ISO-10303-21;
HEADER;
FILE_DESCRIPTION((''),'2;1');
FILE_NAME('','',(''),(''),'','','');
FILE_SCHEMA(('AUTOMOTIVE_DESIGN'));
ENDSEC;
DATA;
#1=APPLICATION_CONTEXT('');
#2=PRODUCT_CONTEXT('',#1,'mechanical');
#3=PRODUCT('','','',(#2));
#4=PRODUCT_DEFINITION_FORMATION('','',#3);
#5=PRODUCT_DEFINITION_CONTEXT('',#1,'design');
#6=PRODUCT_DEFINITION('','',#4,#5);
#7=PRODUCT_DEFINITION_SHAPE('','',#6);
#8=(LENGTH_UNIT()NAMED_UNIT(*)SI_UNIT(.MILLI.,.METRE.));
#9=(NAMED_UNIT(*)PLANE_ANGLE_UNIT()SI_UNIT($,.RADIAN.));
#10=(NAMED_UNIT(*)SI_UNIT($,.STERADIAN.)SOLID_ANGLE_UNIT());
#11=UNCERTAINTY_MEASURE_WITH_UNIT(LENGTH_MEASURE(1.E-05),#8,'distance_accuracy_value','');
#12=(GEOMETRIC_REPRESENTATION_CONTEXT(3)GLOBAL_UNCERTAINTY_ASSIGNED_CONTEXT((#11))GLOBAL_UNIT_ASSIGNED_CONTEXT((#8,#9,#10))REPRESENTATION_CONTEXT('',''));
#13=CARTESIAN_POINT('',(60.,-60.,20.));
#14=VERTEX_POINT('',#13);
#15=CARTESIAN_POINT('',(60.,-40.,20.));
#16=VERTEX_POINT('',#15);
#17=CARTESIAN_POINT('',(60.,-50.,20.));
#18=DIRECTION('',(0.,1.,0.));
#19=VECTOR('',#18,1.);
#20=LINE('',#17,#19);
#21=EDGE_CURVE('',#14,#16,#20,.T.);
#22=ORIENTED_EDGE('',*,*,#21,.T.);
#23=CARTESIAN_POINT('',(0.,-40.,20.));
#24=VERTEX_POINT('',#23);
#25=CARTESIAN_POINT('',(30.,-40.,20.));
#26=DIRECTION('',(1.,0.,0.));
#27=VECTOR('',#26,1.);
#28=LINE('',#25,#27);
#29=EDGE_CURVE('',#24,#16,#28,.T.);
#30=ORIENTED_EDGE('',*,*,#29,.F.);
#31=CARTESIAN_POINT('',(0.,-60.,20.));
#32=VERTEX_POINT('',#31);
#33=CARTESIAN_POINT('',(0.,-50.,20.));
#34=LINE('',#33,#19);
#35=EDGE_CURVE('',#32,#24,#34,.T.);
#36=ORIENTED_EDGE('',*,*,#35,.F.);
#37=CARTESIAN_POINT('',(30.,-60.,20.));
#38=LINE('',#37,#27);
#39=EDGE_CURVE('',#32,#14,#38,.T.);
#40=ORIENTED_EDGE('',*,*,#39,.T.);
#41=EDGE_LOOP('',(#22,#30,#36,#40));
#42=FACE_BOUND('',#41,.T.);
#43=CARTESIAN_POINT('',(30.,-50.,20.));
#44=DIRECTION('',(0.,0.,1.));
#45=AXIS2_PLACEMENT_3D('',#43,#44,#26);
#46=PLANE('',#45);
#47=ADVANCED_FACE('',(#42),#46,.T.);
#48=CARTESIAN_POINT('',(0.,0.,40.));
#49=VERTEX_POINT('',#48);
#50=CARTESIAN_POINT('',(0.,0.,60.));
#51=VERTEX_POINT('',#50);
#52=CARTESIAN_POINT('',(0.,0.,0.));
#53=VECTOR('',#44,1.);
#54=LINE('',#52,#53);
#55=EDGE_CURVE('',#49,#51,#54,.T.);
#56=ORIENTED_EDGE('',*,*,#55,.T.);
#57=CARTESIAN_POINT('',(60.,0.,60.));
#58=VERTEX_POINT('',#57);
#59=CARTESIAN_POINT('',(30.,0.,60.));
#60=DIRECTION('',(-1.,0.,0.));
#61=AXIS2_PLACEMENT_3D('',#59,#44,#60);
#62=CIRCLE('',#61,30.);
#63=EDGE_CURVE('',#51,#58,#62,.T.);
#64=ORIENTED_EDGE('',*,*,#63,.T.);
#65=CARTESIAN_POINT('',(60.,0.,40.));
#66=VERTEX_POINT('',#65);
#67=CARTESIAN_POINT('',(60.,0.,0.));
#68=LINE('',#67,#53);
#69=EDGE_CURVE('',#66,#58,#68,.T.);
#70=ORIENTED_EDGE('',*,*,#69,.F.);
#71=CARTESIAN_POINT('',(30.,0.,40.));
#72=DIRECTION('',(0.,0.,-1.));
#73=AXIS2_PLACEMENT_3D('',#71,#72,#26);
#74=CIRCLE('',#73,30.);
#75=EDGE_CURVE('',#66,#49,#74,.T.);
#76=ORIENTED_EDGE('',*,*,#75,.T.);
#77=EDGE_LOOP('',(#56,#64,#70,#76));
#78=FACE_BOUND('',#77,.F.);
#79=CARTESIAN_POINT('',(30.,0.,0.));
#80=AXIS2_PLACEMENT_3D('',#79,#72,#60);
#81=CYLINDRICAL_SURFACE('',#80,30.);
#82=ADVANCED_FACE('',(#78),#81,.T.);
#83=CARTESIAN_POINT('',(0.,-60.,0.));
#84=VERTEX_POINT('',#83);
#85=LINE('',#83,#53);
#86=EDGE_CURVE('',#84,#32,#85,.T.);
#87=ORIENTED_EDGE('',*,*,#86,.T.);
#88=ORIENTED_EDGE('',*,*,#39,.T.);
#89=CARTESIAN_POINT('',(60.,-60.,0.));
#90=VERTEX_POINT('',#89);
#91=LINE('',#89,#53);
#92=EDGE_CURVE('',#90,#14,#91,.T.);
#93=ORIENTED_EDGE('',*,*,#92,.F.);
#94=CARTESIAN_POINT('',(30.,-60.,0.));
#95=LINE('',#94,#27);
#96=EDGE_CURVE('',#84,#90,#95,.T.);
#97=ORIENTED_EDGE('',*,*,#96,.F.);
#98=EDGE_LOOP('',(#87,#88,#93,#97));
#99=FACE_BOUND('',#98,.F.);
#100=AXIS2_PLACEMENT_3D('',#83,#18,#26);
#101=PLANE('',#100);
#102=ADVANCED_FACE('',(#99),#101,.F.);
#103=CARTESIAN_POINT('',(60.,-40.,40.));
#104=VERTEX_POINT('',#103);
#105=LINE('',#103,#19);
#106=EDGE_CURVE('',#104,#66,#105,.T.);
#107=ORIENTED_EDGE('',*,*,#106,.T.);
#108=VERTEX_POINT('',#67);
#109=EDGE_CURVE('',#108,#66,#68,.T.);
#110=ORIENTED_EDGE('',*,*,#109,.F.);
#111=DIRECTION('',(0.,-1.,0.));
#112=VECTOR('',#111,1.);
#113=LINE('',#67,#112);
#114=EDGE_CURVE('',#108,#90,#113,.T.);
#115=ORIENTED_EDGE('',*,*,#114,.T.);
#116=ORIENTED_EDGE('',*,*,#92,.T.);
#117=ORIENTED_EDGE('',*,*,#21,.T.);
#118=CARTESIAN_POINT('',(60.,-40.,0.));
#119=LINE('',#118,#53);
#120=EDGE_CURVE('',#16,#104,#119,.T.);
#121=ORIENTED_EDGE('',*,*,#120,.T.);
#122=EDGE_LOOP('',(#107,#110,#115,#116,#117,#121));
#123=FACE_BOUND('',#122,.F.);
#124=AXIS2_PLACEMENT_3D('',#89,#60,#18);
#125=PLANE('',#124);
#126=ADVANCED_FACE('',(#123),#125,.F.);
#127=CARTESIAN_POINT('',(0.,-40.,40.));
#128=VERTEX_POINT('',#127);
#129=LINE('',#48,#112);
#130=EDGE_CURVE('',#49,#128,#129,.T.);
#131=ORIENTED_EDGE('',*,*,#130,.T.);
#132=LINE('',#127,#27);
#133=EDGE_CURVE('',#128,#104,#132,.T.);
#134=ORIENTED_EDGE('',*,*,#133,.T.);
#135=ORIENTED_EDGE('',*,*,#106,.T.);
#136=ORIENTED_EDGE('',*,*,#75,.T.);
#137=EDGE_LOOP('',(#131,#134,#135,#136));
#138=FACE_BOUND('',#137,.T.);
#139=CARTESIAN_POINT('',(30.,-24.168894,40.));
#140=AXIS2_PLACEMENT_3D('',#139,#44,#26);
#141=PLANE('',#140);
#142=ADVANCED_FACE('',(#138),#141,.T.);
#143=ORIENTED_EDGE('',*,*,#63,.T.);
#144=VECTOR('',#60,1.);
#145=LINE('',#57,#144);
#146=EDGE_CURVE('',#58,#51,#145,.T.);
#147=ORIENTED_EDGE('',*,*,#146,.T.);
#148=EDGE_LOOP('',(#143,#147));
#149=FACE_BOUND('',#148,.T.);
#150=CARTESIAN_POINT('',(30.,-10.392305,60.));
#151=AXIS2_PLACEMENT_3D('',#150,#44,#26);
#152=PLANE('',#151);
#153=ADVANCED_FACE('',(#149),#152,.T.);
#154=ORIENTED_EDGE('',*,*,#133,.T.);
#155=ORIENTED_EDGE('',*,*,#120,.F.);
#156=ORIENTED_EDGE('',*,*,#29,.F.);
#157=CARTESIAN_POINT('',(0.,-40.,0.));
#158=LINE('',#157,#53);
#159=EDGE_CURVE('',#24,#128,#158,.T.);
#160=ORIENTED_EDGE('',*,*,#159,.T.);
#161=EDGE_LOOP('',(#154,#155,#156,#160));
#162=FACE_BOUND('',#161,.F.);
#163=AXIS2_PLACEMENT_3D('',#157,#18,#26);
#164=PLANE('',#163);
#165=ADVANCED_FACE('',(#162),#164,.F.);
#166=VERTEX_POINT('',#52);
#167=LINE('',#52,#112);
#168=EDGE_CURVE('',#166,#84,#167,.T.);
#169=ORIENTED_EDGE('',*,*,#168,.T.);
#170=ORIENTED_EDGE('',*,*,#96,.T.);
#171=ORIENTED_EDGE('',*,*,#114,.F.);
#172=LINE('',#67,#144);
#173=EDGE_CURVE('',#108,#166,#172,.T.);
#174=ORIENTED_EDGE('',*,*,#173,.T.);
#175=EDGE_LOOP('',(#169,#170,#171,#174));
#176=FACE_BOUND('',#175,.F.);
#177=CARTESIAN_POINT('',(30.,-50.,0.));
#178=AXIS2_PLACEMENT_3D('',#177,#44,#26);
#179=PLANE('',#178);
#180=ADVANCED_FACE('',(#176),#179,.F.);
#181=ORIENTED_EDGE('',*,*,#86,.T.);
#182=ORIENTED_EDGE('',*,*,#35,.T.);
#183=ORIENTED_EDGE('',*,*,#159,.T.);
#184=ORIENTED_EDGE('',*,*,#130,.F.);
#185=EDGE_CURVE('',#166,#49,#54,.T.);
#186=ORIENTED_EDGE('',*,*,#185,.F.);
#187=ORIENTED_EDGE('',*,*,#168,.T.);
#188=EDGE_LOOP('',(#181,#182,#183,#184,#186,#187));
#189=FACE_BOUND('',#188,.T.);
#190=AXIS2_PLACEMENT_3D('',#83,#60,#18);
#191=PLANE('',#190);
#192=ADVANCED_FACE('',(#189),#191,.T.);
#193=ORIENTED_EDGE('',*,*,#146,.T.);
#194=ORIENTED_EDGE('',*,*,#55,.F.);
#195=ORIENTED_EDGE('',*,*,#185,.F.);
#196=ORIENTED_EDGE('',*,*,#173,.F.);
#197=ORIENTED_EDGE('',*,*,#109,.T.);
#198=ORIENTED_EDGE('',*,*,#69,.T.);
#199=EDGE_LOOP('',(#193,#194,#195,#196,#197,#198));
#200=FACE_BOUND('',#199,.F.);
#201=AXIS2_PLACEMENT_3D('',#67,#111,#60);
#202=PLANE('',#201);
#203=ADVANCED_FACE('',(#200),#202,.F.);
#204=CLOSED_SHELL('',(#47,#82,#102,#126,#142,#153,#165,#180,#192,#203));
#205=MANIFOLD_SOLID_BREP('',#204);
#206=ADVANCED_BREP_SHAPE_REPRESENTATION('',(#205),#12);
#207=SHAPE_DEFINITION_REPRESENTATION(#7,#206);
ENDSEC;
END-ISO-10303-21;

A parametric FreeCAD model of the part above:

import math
import FreeCAD as App
import Part
import Sketcher
from FreeCAD import Vector
Q = App.Units.Quantity


def add_polygon(sketch, points):
    """Adds a closed chain of lines whose ends are joined by coincident constraints."""
    first, n = sketch.GeometryCount, len(points)
    for a, b in zip(points, points[1:] + points[:1]):
        sketch.addGeometry(Part.LineSegment(App.Vector(*a, 0), App.Vector(*b, 0)), False)
    for i in range(n):
        sketch.addConstraint(Sketcher.Constraint("Coincident", first + i, 2, first + (i + 1) % n, 1))

doc = App.newDocument("Part")
body = doc.addObject("PartDesign::Body", "Body")

# Sketch on XY plane
sketch1 = body.newObject("Sketcher::SketchObject", "Sketch")
sketch1.AttachmentSupport = (doc.getObject("XY_Plane"), [""])
sketch1.MapMode = "FlatFace"
sketch1.addGeometry(Part.LineSegment(Vector(60, 0, 0), Vector(0, 0, 0)), False)
sketch1.addGeometry(Part.ArcOfCircle(Part.Circle(Vector(30, 0, 0), Vector(0, 0, 1), 30), math.radians(180), math.radians(360)), False)
sketch1.addConstraint(Sketcher.Constraint("Coincident", 0, 1, 1, 2))
sketch1.addConstraint(Sketcher.Constraint("Coincident", 1, 1, 0, 2))
sketch1.addConstraint(Sketcher.Constraint("Horizontal", 0))
sketch1.addConstraint(Sketcher.Constraint("Coincident", 1, 1, -1, 1))
sketch1.addConstraint(Sketcher.Constraint("PointOnObject", 1, 3, -1))
sketch1.addConstraint(Sketcher.Constraint("Radius", 1, Q("30 mm")))
pad1 = body.newObject("PartDesign::Pad", "Pad")
pad1.Profile = sketch1
pad1.Length = 60

# Sketch on XY plane
sketch2 = body.newObject("Sketcher::SketchObject", "Sketch001")
sketch2.AttachmentSupport = (doc.getObject("XY_Plane"), [""])
sketch2.MapMode = "FlatFace"
sketch2.addGeometry(Part.ArcOfCircle(Part.Circle(Vector(30, 0, 0), Vector(0, 0, 1), 30), math.radians(180), math.radians(360)), False)
sketch2.addGeometry(Part.LineSegment(Vector(0, 0, 0), Vector(0, -40, 0)), False)
sketch2.addGeometry(Part.LineSegment(Vector(0, -40, 0), Vector(60, -40, 0)), False)
sketch2.addGeometry(Part.LineSegment(Vector(60, -40, 0), Vector(60, 0, 0)), False)
sketch2.addConstraint(Sketcher.Constraint("Tangent", 0, 1, 1, 1))
sketch2.addConstraint(Sketcher.Constraint("Coincident", 1, 2, 2, 1))
sketch2.addConstraint(Sketcher.Constraint("Coincident", 2, 2, 3, 1))
sketch2.addConstraint(Sketcher.Constraint("Tangent", 3, 2, 0, 2))
sketch2.addConstraint(Sketcher.Constraint("Vertical", 1))
sketch2.addConstraint(Sketcher.Constraint("Horizontal", 2))
sketch2.addConstraint(Sketcher.Constraint("Vertical", 3))
sketch2.addConstraint(Sketcher.Constraint("Coincident", 0, 1, -1, 1))
sketch2.addConstraint(Sketcher.Constraint("Radius", 0, Q("30 mm")))
sketch2.addConstraint(Sketcher.Constraint("DistanceY", 1, 2, 1, 1, Q("40 mm")))
pad2 = body.newObject("PartDesign::Pad", "Pad001")
pad2.Profile = sketch2
pad2.Length = 40

# Sketch on XY plane
sketch3 = body.newObject("Sketcher::SketchObject", "Sketch002")
sketch3.AttachmentSupport = (doc.getObject("XY_Plane"), [""])
sketch3.MapMode = "FlatFace"
add_polygon(sketch3, [(0, -40), (0, -60), (60, -60), (60, -40)])  # lines 0-3
sketch3.addConstraint(Sketcher.Constraint("Vertical", 0))
sketch3.addConstraint(Sketcher.Constraint("Horizontal", 1))
sketch3.addConstraint(Sketcher.Constraint("Vertical", 2))
sketch3.addConstraint(Sketcher.Constraint("Horizontal", 3))
sketch3.addConstraint(Sketcher.Constraint("PointOnObject", 0, 2, -2))
sketch3.addConstraint(Sketcher.Constraint("DistanceX", 1, 1, 1, 2, Q("60 mm")))
sketch3.addConstraint(Sketcher.Constraint("DistanceY", 0, 2, 0, 1, Q("20 mm")))
sketch3.addConstraint(Sketcher.Constraint("DistanceY", 0, 2, -1, 1, Q("60 mm")))
pad3 = body.newObject("PartDesign::Pad", "Pad002")
pad3.Profile = sketch3
pad3.Length = 20

doc.recompute()
